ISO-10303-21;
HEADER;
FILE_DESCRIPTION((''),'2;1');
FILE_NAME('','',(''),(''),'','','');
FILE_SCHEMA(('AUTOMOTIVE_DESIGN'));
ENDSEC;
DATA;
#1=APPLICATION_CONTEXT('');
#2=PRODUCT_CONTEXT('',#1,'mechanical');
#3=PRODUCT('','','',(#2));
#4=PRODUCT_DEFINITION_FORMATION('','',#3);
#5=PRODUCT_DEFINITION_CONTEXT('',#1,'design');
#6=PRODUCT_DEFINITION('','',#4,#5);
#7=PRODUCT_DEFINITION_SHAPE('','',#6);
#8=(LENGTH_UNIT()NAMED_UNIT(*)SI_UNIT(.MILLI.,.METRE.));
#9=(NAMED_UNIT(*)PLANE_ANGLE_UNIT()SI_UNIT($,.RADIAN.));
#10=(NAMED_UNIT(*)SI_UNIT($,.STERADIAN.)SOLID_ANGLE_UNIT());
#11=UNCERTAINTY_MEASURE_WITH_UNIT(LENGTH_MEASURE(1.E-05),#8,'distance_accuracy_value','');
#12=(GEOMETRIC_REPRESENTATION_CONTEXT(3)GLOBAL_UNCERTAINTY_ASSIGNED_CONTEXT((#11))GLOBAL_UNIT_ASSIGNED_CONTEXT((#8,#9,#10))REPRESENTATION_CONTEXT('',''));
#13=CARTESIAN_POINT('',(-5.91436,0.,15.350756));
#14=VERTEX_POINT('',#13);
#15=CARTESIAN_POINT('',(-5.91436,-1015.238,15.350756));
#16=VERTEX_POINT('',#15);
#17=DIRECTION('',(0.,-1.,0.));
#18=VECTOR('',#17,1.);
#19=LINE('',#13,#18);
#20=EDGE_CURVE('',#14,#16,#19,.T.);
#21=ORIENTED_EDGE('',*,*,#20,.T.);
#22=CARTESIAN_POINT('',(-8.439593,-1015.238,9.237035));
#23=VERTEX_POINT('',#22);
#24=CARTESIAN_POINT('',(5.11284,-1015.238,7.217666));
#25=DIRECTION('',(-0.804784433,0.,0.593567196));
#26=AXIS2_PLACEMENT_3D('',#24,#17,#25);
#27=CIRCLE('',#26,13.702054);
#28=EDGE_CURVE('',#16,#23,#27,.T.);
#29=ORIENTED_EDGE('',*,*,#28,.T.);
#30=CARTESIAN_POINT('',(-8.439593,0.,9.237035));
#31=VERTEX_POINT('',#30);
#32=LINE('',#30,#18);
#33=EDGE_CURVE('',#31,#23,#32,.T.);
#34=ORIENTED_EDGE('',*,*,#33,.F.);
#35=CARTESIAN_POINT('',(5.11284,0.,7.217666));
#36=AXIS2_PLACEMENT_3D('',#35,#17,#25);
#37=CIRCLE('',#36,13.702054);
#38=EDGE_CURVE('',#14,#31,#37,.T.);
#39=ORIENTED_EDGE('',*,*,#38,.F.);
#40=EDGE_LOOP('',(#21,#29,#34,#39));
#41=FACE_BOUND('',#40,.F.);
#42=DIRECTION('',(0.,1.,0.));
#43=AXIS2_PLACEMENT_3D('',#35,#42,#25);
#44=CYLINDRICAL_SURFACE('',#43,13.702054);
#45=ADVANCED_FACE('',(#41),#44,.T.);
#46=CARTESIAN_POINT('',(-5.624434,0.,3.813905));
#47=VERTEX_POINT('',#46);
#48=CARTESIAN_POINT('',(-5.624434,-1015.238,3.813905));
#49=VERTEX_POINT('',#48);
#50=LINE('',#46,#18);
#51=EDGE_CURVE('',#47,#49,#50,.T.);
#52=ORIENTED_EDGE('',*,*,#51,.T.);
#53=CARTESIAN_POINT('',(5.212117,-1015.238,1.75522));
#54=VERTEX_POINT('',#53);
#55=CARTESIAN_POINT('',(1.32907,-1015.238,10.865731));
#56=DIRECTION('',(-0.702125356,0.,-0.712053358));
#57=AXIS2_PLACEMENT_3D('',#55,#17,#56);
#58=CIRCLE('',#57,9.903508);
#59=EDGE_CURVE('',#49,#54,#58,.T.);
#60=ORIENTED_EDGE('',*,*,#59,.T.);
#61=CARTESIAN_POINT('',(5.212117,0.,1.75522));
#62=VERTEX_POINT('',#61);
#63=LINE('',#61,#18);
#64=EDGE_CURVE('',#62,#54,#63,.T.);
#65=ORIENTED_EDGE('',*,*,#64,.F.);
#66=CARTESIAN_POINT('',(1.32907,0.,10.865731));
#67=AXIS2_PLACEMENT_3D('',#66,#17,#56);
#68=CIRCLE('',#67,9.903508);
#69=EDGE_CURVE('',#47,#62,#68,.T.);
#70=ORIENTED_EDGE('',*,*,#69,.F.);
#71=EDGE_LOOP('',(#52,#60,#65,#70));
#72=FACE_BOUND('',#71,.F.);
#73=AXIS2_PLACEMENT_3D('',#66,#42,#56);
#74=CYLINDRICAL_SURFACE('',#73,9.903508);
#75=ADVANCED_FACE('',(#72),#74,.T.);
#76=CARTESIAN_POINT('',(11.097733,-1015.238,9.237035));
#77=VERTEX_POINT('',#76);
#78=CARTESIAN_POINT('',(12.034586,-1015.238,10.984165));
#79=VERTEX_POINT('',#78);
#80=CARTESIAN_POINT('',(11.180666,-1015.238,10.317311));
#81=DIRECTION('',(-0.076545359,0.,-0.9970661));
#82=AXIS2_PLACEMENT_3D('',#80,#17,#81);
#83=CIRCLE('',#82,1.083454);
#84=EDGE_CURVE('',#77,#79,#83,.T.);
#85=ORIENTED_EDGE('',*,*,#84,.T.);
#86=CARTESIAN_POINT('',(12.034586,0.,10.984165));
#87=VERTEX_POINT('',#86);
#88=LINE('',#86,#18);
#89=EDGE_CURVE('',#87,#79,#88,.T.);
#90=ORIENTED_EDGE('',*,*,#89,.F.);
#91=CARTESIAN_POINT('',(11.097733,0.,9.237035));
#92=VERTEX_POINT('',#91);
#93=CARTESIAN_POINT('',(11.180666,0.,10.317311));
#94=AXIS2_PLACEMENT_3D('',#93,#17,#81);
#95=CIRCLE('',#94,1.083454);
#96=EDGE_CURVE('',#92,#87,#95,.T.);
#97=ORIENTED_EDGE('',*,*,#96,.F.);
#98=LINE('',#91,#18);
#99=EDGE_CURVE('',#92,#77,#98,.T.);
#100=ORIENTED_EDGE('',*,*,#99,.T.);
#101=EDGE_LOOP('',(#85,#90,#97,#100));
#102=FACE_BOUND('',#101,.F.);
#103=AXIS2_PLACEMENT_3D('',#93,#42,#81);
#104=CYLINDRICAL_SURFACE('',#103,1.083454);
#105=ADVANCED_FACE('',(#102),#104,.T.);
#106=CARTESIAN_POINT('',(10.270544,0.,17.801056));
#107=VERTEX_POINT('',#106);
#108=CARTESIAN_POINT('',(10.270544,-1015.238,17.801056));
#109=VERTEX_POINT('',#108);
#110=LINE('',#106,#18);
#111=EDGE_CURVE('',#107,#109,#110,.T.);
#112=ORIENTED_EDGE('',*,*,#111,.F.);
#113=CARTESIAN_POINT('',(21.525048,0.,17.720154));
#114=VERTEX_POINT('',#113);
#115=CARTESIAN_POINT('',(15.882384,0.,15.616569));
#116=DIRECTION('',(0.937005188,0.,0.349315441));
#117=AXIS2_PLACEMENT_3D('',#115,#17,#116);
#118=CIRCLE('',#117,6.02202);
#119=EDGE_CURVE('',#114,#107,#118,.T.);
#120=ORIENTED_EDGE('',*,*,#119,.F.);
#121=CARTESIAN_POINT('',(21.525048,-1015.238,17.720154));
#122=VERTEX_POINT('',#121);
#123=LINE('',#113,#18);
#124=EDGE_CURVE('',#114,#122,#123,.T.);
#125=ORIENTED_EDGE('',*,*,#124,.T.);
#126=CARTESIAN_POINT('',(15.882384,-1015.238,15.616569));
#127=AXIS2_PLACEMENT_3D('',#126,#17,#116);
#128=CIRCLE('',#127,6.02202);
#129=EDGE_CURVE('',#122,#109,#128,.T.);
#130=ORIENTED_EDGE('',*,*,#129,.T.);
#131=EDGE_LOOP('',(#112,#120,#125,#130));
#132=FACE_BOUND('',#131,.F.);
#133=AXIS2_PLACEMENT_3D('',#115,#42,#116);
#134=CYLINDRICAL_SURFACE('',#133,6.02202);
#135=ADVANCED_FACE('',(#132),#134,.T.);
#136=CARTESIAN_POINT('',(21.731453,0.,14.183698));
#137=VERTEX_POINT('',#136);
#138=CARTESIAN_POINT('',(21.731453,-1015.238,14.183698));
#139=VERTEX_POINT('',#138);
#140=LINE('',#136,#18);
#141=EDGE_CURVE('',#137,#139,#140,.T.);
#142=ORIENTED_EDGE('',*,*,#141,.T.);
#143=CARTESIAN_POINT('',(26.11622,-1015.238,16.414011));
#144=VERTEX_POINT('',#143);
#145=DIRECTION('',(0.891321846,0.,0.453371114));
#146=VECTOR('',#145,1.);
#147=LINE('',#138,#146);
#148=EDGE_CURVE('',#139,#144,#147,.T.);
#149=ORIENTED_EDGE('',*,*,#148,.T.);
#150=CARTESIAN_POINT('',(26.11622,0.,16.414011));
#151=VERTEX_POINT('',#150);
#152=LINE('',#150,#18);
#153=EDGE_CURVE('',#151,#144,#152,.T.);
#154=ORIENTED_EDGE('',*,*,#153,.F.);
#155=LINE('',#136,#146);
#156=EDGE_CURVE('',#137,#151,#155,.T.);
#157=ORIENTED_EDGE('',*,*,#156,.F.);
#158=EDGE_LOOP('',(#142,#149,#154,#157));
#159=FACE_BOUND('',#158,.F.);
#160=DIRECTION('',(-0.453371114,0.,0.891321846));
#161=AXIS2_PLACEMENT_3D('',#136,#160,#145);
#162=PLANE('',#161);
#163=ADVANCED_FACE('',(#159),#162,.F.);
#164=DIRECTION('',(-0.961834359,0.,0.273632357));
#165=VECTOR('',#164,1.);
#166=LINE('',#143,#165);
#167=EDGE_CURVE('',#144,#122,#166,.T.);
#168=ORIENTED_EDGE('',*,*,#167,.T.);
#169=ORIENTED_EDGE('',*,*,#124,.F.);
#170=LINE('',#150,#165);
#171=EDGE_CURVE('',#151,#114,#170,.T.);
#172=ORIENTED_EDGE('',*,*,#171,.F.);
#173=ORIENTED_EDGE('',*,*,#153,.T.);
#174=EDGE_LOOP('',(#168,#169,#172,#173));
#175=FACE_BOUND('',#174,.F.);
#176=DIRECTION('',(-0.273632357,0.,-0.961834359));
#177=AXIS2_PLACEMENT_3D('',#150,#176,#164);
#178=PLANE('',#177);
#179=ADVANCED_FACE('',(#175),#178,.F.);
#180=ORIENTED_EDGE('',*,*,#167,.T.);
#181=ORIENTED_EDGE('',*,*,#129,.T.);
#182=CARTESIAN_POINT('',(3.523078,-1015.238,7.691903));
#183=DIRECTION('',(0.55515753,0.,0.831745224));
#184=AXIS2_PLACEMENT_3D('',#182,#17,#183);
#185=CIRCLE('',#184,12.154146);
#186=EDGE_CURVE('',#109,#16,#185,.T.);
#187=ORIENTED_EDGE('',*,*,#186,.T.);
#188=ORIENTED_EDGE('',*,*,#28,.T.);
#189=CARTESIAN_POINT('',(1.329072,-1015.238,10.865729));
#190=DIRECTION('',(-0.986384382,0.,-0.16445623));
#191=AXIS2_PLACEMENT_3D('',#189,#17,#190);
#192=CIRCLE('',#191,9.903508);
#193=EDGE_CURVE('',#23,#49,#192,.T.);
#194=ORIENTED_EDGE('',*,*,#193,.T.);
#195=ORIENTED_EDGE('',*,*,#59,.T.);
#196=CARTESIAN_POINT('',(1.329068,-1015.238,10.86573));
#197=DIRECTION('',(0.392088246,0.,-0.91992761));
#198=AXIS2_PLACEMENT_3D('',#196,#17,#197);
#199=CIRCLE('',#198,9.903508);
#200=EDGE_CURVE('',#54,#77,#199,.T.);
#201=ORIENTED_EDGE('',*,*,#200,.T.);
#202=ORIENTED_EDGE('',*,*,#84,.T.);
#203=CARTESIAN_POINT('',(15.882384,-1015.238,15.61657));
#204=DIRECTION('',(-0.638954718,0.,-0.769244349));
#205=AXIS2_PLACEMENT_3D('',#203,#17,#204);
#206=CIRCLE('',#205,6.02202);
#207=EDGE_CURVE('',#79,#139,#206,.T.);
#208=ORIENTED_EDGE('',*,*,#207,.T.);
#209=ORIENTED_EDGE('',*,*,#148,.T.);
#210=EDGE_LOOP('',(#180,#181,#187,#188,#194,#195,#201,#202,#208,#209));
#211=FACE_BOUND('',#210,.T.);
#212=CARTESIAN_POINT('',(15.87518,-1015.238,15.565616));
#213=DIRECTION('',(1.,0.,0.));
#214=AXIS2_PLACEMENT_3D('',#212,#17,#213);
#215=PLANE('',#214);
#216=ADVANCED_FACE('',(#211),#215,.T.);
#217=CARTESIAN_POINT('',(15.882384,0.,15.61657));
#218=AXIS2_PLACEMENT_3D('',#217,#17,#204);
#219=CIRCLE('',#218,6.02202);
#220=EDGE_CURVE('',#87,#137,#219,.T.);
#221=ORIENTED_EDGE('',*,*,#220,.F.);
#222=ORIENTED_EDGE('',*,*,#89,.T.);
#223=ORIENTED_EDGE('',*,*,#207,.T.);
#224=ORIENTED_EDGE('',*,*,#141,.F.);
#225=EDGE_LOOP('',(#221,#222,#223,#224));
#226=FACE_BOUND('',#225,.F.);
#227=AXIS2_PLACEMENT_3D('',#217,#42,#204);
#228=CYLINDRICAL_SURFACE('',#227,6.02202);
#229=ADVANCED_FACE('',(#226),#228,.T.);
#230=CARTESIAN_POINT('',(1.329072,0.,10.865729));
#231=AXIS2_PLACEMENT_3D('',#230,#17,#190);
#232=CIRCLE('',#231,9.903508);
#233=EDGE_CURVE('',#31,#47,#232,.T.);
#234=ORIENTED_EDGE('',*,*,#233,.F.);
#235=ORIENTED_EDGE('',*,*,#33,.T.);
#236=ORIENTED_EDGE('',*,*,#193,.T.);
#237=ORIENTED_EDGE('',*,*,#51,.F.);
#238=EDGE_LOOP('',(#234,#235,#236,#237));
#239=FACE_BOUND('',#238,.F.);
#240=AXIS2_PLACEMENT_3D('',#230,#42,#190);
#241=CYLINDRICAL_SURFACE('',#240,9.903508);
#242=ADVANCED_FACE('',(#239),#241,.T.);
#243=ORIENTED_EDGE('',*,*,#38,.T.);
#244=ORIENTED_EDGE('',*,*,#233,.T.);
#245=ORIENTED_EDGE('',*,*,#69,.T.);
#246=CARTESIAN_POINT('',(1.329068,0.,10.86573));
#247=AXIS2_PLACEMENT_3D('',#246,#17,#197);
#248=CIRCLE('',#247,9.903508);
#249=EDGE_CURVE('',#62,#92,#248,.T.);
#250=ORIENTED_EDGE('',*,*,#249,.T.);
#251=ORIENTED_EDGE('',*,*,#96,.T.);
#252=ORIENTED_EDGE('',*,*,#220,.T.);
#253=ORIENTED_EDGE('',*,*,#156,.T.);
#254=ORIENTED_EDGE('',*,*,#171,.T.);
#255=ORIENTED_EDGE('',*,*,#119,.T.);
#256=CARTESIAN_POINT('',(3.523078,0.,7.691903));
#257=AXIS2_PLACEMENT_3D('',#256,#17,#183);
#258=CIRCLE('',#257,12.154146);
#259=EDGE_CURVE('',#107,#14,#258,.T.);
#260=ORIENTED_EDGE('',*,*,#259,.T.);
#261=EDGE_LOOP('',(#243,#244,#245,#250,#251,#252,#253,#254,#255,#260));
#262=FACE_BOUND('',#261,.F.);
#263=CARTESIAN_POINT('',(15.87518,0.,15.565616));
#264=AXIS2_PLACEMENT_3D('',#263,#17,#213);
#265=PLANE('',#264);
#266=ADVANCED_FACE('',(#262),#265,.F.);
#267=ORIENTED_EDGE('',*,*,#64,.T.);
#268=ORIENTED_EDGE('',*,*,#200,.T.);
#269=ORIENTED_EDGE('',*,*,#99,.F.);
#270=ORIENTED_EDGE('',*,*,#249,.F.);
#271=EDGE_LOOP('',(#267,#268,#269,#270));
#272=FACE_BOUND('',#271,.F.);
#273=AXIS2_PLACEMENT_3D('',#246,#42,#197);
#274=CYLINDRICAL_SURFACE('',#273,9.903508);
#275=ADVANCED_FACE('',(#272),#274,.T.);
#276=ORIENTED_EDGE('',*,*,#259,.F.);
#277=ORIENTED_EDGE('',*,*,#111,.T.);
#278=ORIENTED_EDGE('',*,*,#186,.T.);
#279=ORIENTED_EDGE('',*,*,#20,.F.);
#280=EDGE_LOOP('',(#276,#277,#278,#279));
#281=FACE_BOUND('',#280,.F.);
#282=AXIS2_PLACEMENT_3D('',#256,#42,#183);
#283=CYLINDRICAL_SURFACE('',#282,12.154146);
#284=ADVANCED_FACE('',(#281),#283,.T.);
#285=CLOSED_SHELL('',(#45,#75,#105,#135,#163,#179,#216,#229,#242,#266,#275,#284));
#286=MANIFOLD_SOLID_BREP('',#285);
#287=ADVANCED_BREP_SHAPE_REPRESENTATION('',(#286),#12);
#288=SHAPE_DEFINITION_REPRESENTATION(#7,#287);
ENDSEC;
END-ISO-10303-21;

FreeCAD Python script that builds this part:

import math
import FreeCAD as App
import Part
import Sketcher
from FreeCAD import Vector
Q = App.Units.Quantity

doc = App.newDocument("Part")
body = doc.addObject("PartDesign::Body", "Body")

# Sketch on XZ plane
sketch1 = body.newObject("Sketcher::SketchObject", "Sketch")
sketch1.AttachmentSupport = (doc.getObject("XZ_Plane"), [""])
sketch1.MapMode = "FlatFace"
sketch1.addGeometry([
    Part.ArcOfCircle(Part.Circle(Vector(15.882384, 15.616569, 0), Vector(0, 0, 1), 6.02202), math.radians(20.44545), math.radians(158.730833)),  # 0
    Part.ArcOfCircle(Part.Circle(Vector(3.523078, 7.691903, 0), Vector(0, 0, 1), 12.154146), math.radians(56.278434), math.radians(140.939309)),  # 1
    Part.ArcOfCircle(Part.Circle(Vector(5.11284, 7.217666, 0), Vector(0, 0, 1), 13.702054), math.radians(143.589442), math.radians(171.525045)),  # 2
    Part.ArcOfCircle(Part.Circle(Vector(1.329072, 10.865729, 0), Vector(0, 0, 1), 9.903508), math.radians(-170.534353), math.radians(-134.597792)),  # 3
    Part.ArcOfCircle(Part.Circle(Vector(1.32907, 10.865731, 0), Vector(0, 0, 1), 9.903508), math.radians(-134.597771), math.radians(-66.915512)),  # 4
    Part.ArcOfCircle(Part.Circle(Vector(1.329068, 10.86573, 0), Vector(0, 0, 1), 9.903508), math.radians(-66.915501), math.radians(-9.465656)),  # 5
    Part.ArcOfCircle(Part.Circle(Vector(11.180666, 10.317311, 0), Vector(0, 0, 1), 1.083454), math.radians(-94.39002), math.radians(37.987467)),  # 6
    Part.ArcOfCircle(Part.Circle(Vector(15.882384, 15.61657, 0), Vector(0, 0, 1), 6.02202), math.radians(-129.71392), math.radians(-13.764916)),  # 7
    Part.LineSegment(Vector(21.731453, 14.183698, 0), Vector(26.11622, 16.414011, 0)),  # 8
    Part.LineSegment(Vector(26.11622, 16.414011, 0), Vector(21.525048, 17.720154, 0)),  # 9
], False)
sketch1.addConstraint([
    Sketcher.Constraint("Coincident", 0, 2, 1, 1),
    Sketcher.Constraint("Coincident", 1, 2, 2, 1),
    Sketcher.Constraint("Coincident", 2, 2, 3, 1),
    Sketcher.Constraint("Coincident", 3, 2, 4, 1),
    Sketcher.Constraint("Coincident", 4, 2, 5, 1),
    Sketcher.Constraint("Coincident", 5, 2, 6, 1),
    Sketcher.Constraint("Coincident", 6, 2, 7, 1),
    Sketcher.Constraint("Coincident", 7, 2, 8, 1),
    Sketcher.Constraint("Coincident", 8, 2, 9, 1),
    Sketcher.Constraint("Coincident", 9, 2, 0, 1),
    Sketcher.Constraint("Coincident", 4, 3, 3, 3),
    Sketcher.Constraint("Coincident", 5, 3, 3, 3),
    Sketcher.Constraint("Coincident", 7, 3, 0, 3),
    Sketcher.Constraint("Radius", 0, 6.02202),
    Sketcher.Constraint("Radius", 7, 6.02202),
    Sketcher.Constraint("Radius", 1, 12.154146),
    Sketcher.Constraint("Radius", 2, 13.702054),
    Sketcher.Constraint("Radius", 3, 9.903508),
    Sketcher.Constraint("Radius", 6, 1.083454),
    Sketcher.Constraint("Distance", 8, 4.919398),
    Sketcher.Constraint("DistanceX", 1, 2, 2, 3, 11.0272),
    Sketcher.Constraint("DistanceX", 6, 2, 7, 3, 3.847798),
    Sketcher.Constraint("DistanceY", 9, 2, 0, 2, 0.080902),
    Sketcher.Constraint("Distance", 9, 4.77335),
    Sketcher.Constraint("DistanceY", -1, 1, 0, 3, 15.616569),
    Sketcher.Constraint("DistanceX", -1, 1, 1, 3, 3.523078),
    Sketcher.Constraint("DistanceX", -1, 1, 2, 3, 5.11284),
    Sketcher.Constraint("DistanceY", -1, 1, 3, 3, 10.865729),
    Sketcher.Constraint("DistanceX", -1, 1, 4, 3, 1.32907),
    Sketcher.Constraint("DistanceY", -1, 1, 6, 3, 10.317311),
    Sketcher.Constraint("DistanceY", -1, 1, 4, 2, 1.75522),
    Sketcher.Constraint("DistanceX", -1, 1, 8, 2, 26.11622),
    Sketcher.Constraint("DistanceY", -1, 1, 8, 2, 16.414011),
    Sketcher.Constraint("DistanceX", -1, 1, 9, 2, 21.525048),
    Sketcher.Constraint("DistanceX", 2, 2, 3, 2, 2.815159),
])
pad1 = body.newObject("PartDesign::Pad", "Pad")
pad1.Profile = sketch1
pad1.Length = Q("39.97 in")

doc.recompute()
